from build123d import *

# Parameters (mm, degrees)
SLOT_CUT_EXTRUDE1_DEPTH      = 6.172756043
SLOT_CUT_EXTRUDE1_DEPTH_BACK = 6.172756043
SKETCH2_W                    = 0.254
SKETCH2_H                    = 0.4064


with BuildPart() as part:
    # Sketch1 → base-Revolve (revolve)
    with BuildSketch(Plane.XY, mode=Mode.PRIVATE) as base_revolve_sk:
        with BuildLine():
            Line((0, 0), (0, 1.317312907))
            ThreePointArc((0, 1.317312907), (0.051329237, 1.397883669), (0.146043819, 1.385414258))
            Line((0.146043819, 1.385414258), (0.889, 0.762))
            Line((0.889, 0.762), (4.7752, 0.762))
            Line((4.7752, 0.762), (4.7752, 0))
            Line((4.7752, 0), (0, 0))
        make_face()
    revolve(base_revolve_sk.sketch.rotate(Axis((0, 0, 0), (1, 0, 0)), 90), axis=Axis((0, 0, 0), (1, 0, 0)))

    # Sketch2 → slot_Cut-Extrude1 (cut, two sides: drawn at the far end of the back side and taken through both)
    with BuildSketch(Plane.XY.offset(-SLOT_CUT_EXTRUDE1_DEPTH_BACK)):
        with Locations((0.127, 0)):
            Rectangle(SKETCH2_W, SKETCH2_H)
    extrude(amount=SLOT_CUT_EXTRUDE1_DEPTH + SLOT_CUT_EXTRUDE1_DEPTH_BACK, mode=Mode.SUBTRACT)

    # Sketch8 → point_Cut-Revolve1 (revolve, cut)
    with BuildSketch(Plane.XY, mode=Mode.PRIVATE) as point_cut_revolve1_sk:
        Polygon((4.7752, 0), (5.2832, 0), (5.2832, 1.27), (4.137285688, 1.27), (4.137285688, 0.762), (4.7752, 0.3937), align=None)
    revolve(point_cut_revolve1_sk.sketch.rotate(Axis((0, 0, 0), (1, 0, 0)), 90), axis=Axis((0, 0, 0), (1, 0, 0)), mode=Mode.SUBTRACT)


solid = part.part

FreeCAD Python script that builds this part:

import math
import FreeCAD as App
import Part
import Sketcher
from FreeCAD import Vector
Q = App.Units.Quantity


def add_polygon(sketch, points):
    """Adds a closed chain of lines whose ends are joined by coincident constraints."""
    first, n = sketch.GeometryCount, len(points)
    for a, b in zip(points, points[1:] + points[:1]):
        sketch.addGeometry(Part.LineSegment(App.Vector(*a, 0), App.Vector(*b, 0)), False)
    for i in range(n):
        sketch.addConstraint(Sketcher.Constraint("Coincident", first + i, 2, first + (i + 1) % n, 1))

doc = App.newDocument("Part")
params = doc.addObject("Spreadsheet::Sheet", "Params")
for row, (alias, value) in enumerate([
    ("sketch1_height", "0.03 in"),
    ("sketch1_width", "0.188 in"),
    ("sketch1_width2", "0.153 in"),
    ("revolution_angle", "360 deg"),
    ("sketch2_width", "0.01 in"),
    ("sketch2_height", "0.016 in"),
    ("sketch3_width", "0.02 in"),
    ("sketch3_height", "0.05 in"),
    ("sketch3_length", "0.029 in"),
    ("groove_angle", "360 deg"),
], start=1):
    params.set(f"A{row}", alias)
    params.set(f"B{row}", "=" + value)
    params.setAlias(f"B{row}", alias)

body = doc.addObject("PartDesign::Body", "Body")

sketch1 = doc.addObject("Sketcher::SketchObject", "Sketch")
body.addObject(sketch1)
sketch1.AttachmentSupport = (doc.XY_Plane, [""])
sketch1.MapMode = "FlatFace"
sketch1.addGeometry([
    Part.LineSegment(Vector(0, 1.32, 0), Vector(0, 0, 0)),
    Part.LineSegment(Vector(0, 0, 0), Vector(4.78, 0, 0)),
    Part.LineSegment(Vector(4.78, 0, 0), Vector(4.78, 0.76, 0)),
    Part.LineSegment(Vector(4.78, 0.76, 0), Vector(0.89, 0.76, 0)),
    Part.LineSegment(Vector(0.89, 0.76, 0), Vector(0.15, 1.39, 0)),
    Part.ArcOfCircle(Part.Circle(Vector(0.09, 1.32, 0), Vector(0, 0, 1), 0.09), math.radians(50), math.radians(180)),
], False)
sketch1.addConstraint([
    Sketcher.Constraint("Coincident", 0, 2, 1, 1),
    Sketcher.Constraint("Coincident", 1, 2, 2, 1),
    Sketcher.Constraint("Coincident", 2, 2, 3, 1),
    Sketcher.Constraint("Coincident", 3, 2, 4, 1),
    Sketcher.Constraint("Tangent", 4, 2, 5, 1),
    Sketcher.Constraint("Tangent", 5, 2, 0, 1),
    Sketcher.Constraint("Vertical", 0),
    Sketcher.Constraint("Horizontal", 1),
    Sketcher.Constraint("Vertical", 2),
    Sketcher.Constraint("Horizontal", 3),
    Sketcher.Constraint("Coincident", 0, 2, -1, 1),
    Sketcher.Constraint("Angle", 4, Q("140 deg")),
    Sketcher.Constraint("DistanceY", 2, 1, 2, 2, Q("0.03 in")),
    Sketcher.Constraint("Radius", 5, Q("0.0035 in")),
    Sketcher.Constraint("DistanceX", 1, 1, 1, 2, Q("0.188 in")),
    Sketcher.Constraint("DistanceX", 3, 2, 3, 1, Q("0.153 in")),
])
sketch1.setExpression("Constraints[12]", "Params.sketch1_height")
sketch1.setExpression("Constraints[14]", "Params.sketch1_width")
sketch1.setExpression("Constraints[15]", "Params.sketch1_width2")
revolution = doc.addObject("PartDesign::Revolution", "Revolution")
body.addObject(revolution)
revolution.Profile = sketch1
revolution.ReferenceAxis = (sketch1, ["H_Axis"])
revolution.setExpression("Angle", "Params.revolution_angle")

sketch2 = doc.addObject("Sketcher::SketchObject", "Sketch001")
body.addObject(sketch2)
sketch2.AttachmentSupport = (doc.XY_Plane, [""])
sketch2.MapMode = "FlatFace"
add_polygon(sketch2, [(0, 0.2), (0, -0.2), (0.25, -0.2), (0.25, 0.2)])
sketch2.addConstraint([
    Sketcher.Constraint("Vertical", 0),
    Sketcher.Constraint("Horizontal", 1),
    Sketcher.Constraint("Vertical", 2),
    Sketcher.Constraint("Horizontal", 3),
    Sketcher.Constraint("Symmetric", 0, 2, 3, 2, -1, 1),
    Sketcher.Constraint("DistanceX", 1, 1, 1, 2, Q("0.01 in")),
    Sketcher.Constraint("DistanceY", 0, 2, 0, 1, Q("0.016 in")),
])
sketch2.setExpression("Constraints[9]", "Params.sketch2_width")
sketch2.setExpression("Constraints[10]", "Params.sketch2_height")
pocket1 = doc.addObject("PartDesign::Pocket", "Pocket")
body.addObject(pocket1)
pocket1.Profile = sketch2
pocket1.Type = "ThroughAll"
pocket1.Midplane = True

sketch3 = doc.addObject("Sketcher::SketchObject", "Sketch002")
body.addObject(sketch3)
sketch3.AttachmentSupport = (doc.XY_Plane, [""])
sketch3.MapMode = "FlatFace"
add_polygon(sketch3, [(4.78, 0), (5.28, 0), (5.28, 1.27), (4.14, 1.27), (4.14, 0.76), (4.78, 0.39)])
sketch3.addConstraint([
    Sketcher.Constraint("Horizontal", 0),
    Sketcher.Constraint("Vertical", 1),
    Sketcher.Constraint("Horizontal", 2),
    Sketcher.Constraint("Vertical", 3),
    Sketcher.Constraint("Vertical", 5),
    Sketcher.Constraint("PointOnObject", 0, 2, -1),
    Sketcher.Constraint("Equal", 0, 3),
    Sketcher.Constraint("Angle", 4, Q("-30 deg")),
    Sketcher.Constraint("DistanceX", 0, 1, 0, 2, Q("0.02 in")),
    Sketcher.Constraint("DistanceY", 1, 1, 1, 2, Q("0.05 in")),
    Sketcher.Constraint("Distance", 4, Q("0.029 in")),
    Sketcher.Constraint("DistanceX", -1, 1, 0, 2, Q("0.208 in")),
])
sketch3.setExpression("Constraints[14]", "Params.sketch3_width")
sketch3.setExpression("Constraints[15]", "Params.sketch3_height")
sketch3.setExpression("Constraints[16]", "Params.sketch3_length")
groove = doc.addObject("PartDesign::Groove", "Groove")
body.addObject(groove)
groove.Profile = sketch3
groove.ReferenceAxis = (sketch3, ["H_Axis"])
groove.setExpression("Angle", "Params.groove_angle")

doc.recompute()
